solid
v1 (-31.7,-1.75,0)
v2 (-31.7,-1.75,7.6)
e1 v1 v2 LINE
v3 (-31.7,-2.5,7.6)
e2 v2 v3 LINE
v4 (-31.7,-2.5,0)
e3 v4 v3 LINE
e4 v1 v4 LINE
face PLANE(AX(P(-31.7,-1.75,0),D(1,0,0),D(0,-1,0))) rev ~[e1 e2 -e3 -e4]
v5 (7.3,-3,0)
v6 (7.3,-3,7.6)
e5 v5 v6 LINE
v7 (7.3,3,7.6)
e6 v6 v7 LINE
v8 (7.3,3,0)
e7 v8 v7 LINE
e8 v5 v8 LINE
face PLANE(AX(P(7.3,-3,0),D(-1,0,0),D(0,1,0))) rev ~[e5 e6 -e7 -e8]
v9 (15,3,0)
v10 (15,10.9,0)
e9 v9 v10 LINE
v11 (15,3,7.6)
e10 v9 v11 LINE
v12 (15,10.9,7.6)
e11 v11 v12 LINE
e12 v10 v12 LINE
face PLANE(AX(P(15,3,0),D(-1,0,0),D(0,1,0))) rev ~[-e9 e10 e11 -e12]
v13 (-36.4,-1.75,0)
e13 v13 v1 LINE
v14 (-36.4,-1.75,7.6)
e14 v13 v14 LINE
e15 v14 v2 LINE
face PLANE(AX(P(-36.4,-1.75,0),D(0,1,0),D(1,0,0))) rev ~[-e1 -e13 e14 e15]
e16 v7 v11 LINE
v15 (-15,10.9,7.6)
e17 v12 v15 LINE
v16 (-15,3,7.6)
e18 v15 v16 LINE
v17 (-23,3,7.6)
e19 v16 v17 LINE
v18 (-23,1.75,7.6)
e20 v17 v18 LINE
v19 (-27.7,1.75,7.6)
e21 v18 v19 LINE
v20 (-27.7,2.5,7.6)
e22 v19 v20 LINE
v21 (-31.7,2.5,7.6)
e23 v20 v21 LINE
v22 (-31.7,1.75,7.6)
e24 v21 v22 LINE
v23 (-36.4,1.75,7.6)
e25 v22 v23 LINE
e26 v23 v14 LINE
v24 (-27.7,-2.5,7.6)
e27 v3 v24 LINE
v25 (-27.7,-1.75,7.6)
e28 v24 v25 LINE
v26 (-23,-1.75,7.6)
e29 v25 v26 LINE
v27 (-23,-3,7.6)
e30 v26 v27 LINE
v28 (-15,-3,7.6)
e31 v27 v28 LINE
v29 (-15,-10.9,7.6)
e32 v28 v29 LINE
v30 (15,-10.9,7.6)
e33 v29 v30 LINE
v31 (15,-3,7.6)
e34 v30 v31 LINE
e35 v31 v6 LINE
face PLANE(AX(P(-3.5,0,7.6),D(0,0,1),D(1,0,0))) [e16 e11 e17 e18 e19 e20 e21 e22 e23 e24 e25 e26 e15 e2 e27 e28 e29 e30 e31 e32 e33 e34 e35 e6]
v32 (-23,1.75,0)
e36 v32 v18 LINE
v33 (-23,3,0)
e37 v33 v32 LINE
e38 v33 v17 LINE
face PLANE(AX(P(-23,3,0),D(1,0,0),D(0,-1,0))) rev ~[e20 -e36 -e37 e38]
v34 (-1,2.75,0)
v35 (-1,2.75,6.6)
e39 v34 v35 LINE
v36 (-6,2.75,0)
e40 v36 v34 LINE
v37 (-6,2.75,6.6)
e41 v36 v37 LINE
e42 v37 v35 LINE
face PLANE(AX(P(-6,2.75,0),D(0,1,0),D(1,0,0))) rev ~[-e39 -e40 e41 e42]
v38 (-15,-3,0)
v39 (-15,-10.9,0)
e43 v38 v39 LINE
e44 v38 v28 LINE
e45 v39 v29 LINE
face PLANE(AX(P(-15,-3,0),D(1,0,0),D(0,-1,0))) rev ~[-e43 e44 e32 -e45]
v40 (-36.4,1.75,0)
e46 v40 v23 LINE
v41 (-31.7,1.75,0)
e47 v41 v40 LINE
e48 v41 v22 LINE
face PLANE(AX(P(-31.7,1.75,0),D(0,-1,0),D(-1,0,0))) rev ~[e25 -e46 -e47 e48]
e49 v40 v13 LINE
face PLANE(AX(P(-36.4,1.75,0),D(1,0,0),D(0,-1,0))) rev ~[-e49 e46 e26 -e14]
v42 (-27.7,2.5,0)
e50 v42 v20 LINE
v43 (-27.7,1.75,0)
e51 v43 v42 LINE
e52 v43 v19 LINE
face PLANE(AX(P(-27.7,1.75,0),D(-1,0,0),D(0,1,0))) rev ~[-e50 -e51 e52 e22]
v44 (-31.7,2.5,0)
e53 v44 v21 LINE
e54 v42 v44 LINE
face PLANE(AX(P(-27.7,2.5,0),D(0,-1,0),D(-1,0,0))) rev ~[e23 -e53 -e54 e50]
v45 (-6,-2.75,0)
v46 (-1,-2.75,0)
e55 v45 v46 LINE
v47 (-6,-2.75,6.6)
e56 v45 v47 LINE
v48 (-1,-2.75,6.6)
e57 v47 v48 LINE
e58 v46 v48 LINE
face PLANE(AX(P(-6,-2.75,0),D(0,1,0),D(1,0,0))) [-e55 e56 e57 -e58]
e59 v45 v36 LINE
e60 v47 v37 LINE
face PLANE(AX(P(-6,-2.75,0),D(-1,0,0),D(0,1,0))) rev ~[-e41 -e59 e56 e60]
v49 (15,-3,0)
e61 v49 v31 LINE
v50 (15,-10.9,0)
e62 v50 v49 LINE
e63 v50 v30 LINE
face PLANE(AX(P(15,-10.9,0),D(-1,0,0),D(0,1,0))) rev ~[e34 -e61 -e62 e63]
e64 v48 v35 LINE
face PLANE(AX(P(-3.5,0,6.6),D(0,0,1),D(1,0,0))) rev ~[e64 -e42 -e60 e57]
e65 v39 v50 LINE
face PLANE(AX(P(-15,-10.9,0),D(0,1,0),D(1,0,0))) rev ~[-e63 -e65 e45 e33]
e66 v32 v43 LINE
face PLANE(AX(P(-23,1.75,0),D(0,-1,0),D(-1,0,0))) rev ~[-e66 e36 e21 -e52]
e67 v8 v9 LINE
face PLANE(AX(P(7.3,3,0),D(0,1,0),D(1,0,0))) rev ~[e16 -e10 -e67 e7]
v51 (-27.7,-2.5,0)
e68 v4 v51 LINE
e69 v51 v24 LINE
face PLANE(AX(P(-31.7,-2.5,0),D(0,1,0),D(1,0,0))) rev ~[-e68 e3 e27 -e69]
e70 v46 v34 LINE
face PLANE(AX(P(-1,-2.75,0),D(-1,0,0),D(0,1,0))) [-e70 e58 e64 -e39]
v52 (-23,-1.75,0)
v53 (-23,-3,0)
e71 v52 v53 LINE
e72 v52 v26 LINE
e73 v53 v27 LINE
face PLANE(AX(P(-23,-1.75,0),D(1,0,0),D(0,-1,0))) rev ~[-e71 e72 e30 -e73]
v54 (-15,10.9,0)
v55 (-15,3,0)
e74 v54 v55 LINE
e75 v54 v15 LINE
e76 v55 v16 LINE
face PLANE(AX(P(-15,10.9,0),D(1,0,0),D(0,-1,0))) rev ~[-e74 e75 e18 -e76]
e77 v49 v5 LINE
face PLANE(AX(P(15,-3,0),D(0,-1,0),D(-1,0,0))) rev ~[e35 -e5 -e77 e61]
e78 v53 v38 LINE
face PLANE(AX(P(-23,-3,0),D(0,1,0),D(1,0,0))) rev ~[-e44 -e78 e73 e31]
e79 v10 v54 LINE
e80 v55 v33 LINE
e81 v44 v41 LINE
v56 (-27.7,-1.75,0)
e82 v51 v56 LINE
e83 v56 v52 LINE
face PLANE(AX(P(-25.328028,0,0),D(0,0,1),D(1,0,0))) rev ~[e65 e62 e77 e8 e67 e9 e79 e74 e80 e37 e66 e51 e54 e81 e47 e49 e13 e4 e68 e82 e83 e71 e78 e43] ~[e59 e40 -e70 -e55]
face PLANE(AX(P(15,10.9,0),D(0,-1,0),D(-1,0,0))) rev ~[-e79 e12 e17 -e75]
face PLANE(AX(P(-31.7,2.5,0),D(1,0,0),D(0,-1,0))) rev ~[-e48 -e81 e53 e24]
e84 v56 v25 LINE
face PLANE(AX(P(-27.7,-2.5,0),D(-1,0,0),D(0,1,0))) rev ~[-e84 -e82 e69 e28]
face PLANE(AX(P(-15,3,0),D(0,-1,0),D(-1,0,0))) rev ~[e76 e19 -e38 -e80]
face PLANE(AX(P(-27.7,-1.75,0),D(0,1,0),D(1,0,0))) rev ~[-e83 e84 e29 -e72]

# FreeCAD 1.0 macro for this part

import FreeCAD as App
import Part
import Sketcher

V = App.Vector
Q = App.Units.Quantity


def add_polygon(sketch, points):
    """Adds a closed chain of lines whose ends are joined by coincident constraints."""
    first, n = sketch.GeometryCount, len(points)
    for a, b in zip(points, points[1:] + points[:1]):
        sketch.addGeometry(Part.LineSegment(App.Vector(*a, 0), App.Vector(*b, 0)), False)
    for i in range(n):
        sketch.addConstraint(Sketcher.Constraint("Coincident", first + i, 2, first + (i + 1) % n, 1))

doc = App.newDocument("Part")
body = doc.addObject("PartDesign::Body", "Body")

# Sketch on XY plane
sketch1 = doc.addObject("Sketcher::SketchObject", "Sketch")
body.addObject(sketch1)
sketch1.AttachmentSupport = (doc.XY_Plane, [""])
sketch1.MapMode = "FlatFace"
add_polygon(sketch1, [(-23, -3), (-15, -3), (-15, -10.9), (15, -10.9), (15, -3), (7.3, -3), (7.3, 3), (15, 3), (15, 10.9), (-15, 10.9), (-15, 3), (-23, 3), (-23, 1.8), (-27.7, 1.8), (-27.7, 2.5), (-31.7, 2.5), (-31.7, 1.8), (-36.4, 1.8), (-36.4, -1.8), (-31.7, -1.8), (-31.7, -2.5), (-27.7, -2.5), (-27.7, -1.8), (-23, -1.8)])  # lines 0-23
add_polygon(sketch1, [(-1, -2.8), (-6, -2.8), (-6, 2.8), (-1, 2.8)])  # lines 24-27
sketch1.addConstraint([
    Sketcher.Constraint("Horizontal", 0),
    Sketcher.Constraint("Vertical", 1),
    Sketcher.Constraint("Horizontal", 2),
    Sketcher.Constraint("Vertical", 3),
    Sketcher.Constraint("Horizontal", 4),
    Sketcher.Constraint("Vertical", 5),
    Sketcher.Constraint("Horizontal", 6),
    Sketcher.Constraint("Vertical", 7),
    Sketcher.Constraint("Horizontal", 8),
    Sketcher.Constraint("Vertical", 9),
    Sketcher.Constraint("Horizontal", 10),
    Sketcher.Constraint("Vertical", 11),
    Sketcher.Constraint("Horizontal", 12),
    Sketcher.Constraint("Vertical", 13),
    Sketcher.Constraint("Horizontal", 14),
    Sketcher.Constraint("Vertical", 15),
    Sketcher.Constraint("Horizontal", 16),
    Sketcher.Constraint("Vertical", 17),
    Sketcher.Constraint("Horizontal", 18),
    Sketcher.Constraint("Vertical", 19),
    Sketcher.Constraint("Horizontal", 20),
    Sketcher.Constraint("Vertical", 21),
    Sketcher.Constraint("Horizontal", 22),
    Sketcher.Constraint("Vertical", 23),
    Sketcher.Constraint("Horizontal", 24),
    Sketcher.Constraint("Vertical", 25),
    Sketcher.Constraint("Horizontal", 26),
    Sketcher.Constraint("Vertical", 27),
    Sketcher.Constraint("Symmetric", 0, 2, 6, 2, -1, 1),
    Sketcher.Constraint("Symmetric", 2, 2, 8, 2, -1, 1),
    Sketcher.Constraint("Symmetric", 0, 2, 3, 2, -2),
    Sketcher.Constraint("Symmetric", 15, 2, 18, 2, -1),
    Sketcher.Constraint("Symmetric", 13, 2, 20, 2, -1),
    Sketcher.Constraint("Symmetric", 11, 2, 22, 2, -1),
    Sketcher.Constraint("Horizontal", 6, 2, 9, 2),
    Sketcher.Constraint("Horizontal", 12, 2, 15, 2),
    Sketcher.Constraint("Equal", 12, 16),
    Sketcher.Constraint("DistanceX", 0, 1, 0, 2, Q("8 mm")),
    Sketcher.Constraint("DistanceX", 2, 1, 2, 2, Q("30 mm")),
    Sketcher.Constraint("DistanceX", 14, 2, 14, 1, Q("4 mm")),
    Sketcher.Constraint("DistanceX", 24, 2, 24, 1, Q("5 mm")),
    Sketcher.Constraint("DistanceY", 5, 1, 5, 2, Q("6 mm")),
    Sketcher.Constraint("DistanceX", 4, 2, 4, 1, Q("7.7 mm")),
    Sketcher.Constraint("DistanceX", 12, 2, 12, 1, Q("4.7 mm")),
    Sketcher.Constraint("DistanceY", 1, 2, 1, 1, Q("7.9 mm")),
    Sketcher.Constraint("DistanceY", 17, 2, 17, 1, Q("3.5 mm")),
    Sketcher.Constraint("DistanceY", 25, 1, 25, 2, Q("5.5 mm")),
    Sketcher.Constraint("DistanceX", 24, 2, -1, 1, Q("6 mm")),
    Sketcher.Constraint("DistanceY", 19, 2, 14, 2, Q("5 mm")),
    Sketcher.Constraint("DistanceY", 24, 2, -1, 1, Q("2.75 mm")),
])
pad1 = doc.addObject("PartDesign::Pad", "Pad")
body.addObject(pad1)
pad1.Profile = sketch1
pad1.Length = 7.6

# Sketch on XY plane
sketch2 = doc.addObject("Sketcher::SketchObject", "Sketch001")
body.addObject(sketch2)
sketch2.AttachmentSupport = (doc.XY_Plane, [""])
sketch2.MapMode = "FlatFace"
sketch2.AttachmentOffset = App.Placement(V(0, 0, 7.6), App.Rotation())
add_polygon(sketch2, [(-6, 3), (-6, -3), (-1, -3), (-1, 3)])  # lines 0-3
sketch2.addConstraint([
    Sketcher.Constraint("Vertical", 0),
    Sketcher.Constraint("Horizontal", 1),
    Sketcher.Constraint("Vertical", 2),
    Sketcher.Constraint("Horizontal", 3),
    Sketcher.Constraint("DistanceX", 1, 1, 1, 2, Q("5 mm")),
    Sketcher.Constraint("DistanceY", 0, 2, 0, 1, Q("5.5 mm")),
    Sketcher.Constraint("DistanceX", 0, 2, -1, 1, Q("6 mm")),
    Sketcher.Constraint("DistanceY", 0, 2, -1, 1, Q("2.75 mm")),
])
pad2 = doc.addObject("PartDesign::Pad", "Pad001")
body.addObject(pad2)
pad2.Profile = sketch2
pad2.Length = 1
pad2.Reversed = True

doc.recompute()
